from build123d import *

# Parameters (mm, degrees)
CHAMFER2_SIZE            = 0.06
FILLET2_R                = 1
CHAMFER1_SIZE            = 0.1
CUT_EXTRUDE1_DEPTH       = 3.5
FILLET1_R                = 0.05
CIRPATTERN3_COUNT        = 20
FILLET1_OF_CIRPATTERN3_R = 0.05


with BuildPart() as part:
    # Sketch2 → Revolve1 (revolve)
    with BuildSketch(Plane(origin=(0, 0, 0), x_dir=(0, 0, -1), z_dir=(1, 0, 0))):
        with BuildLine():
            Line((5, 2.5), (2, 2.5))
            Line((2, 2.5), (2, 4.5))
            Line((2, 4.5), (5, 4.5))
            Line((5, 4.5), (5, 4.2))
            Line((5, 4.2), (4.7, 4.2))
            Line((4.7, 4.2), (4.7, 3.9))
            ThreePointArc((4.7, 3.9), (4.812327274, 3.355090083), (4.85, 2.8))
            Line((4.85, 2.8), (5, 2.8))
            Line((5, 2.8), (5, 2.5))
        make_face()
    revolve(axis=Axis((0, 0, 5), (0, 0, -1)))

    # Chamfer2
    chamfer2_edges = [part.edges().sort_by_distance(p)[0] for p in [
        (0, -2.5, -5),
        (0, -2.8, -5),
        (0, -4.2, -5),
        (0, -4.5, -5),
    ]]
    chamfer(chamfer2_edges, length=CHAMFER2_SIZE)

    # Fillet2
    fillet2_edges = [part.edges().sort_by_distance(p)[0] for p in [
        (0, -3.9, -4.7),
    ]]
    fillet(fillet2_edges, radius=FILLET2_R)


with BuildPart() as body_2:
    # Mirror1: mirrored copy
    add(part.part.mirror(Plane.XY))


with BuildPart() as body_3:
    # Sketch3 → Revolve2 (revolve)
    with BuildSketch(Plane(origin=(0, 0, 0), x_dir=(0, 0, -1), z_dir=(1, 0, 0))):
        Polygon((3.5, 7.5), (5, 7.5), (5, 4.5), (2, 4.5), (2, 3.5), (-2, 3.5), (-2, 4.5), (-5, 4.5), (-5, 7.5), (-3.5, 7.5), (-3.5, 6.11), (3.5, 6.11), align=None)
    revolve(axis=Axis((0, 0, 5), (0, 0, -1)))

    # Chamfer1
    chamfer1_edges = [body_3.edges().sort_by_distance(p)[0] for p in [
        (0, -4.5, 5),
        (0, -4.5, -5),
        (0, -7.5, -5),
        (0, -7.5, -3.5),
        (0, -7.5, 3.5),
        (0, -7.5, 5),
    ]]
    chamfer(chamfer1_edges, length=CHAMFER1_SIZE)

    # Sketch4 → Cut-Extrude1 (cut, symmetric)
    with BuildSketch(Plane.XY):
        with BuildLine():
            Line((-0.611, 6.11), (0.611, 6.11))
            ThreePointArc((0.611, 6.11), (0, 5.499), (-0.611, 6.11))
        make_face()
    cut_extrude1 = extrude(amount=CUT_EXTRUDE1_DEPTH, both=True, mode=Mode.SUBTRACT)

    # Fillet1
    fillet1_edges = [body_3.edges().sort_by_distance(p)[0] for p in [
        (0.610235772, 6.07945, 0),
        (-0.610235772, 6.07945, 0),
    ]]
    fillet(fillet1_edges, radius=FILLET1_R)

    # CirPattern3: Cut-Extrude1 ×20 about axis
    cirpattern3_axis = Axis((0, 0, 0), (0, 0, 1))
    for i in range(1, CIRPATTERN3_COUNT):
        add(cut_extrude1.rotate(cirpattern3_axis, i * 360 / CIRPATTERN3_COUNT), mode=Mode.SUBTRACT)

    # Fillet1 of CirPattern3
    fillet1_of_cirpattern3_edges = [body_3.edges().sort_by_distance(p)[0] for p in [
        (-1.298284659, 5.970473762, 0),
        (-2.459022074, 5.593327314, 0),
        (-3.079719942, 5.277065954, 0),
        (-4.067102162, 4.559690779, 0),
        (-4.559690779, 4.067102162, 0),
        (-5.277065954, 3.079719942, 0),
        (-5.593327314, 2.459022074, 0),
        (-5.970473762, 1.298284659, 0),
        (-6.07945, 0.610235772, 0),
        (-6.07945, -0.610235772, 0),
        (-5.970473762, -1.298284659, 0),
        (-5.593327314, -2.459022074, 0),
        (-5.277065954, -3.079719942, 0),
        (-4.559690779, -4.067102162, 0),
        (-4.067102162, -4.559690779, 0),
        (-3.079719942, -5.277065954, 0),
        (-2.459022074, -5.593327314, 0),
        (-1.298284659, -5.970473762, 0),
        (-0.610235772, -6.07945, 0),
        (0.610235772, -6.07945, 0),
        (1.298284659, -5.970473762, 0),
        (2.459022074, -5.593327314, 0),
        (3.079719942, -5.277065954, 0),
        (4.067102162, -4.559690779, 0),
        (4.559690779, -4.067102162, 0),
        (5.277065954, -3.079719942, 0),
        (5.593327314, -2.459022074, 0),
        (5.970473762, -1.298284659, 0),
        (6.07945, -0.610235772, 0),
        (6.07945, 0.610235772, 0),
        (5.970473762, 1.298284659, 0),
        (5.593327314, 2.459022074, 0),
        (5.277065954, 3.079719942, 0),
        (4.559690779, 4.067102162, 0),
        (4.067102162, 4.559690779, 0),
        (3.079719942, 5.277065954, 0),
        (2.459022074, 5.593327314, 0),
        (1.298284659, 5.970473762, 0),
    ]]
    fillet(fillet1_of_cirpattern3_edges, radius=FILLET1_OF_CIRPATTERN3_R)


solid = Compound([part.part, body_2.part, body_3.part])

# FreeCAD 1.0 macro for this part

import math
import FreeCAD as App
import Part
import Sketcher

V = App.Vector
Q = App.Units.Quantity


def edges_at(feature, points):
    """Names of the edges that pass closest to the given points."""
    edges = feature.Shape.Edges
    near = lambda p: min(range(len(edges)), key=lambda i: edges[i].distToShape(Part.Vertex(*p))[0])
    return sorted({f"Edge{near(p) + 1}" for p in points})

doc = App.newDocument("Part")
body = doc.addObject("PartDesign::Body", "Body")

sketch1 = doc.addObject("Sketcher::SketchObject", "Sketch")
body.addObject(sketch1)
sketch1.AttachmentSupport = (doc.YZ_Plane, [""])
sketch1.MapMode = "FlatFace"
sketch1.addGeometry([
    Part.LineSegment(V(2.5, -2, 0), V(2.5, -5, 0)),
    Part.LineSegment(V(2.5, -5, 0), V(2.8, -5, 0)),
    Part.LineSegment(V(2.8, -5, 0), V(2.8, -4.85, 0)),
    Part.ArcOfCircle(Part.Circle(V(2.8, -0.74, 0), V(0, 0, 1), 4.11), math.radians(-90), math.radians(-74.47)),
    Part.LineSegment(V(3.9, -4.7, 0), V(4.2, -4.7, 0)),
    Part.LineSegment(V(4.2, -4.7, 0), V(4.2, -5, 0)),
    Part.LineSegment(V(4.2, -5, 0), V(4.5, -5, 0)),
    Part.LineSegment(V(4.5, -5, 0), V(4.5, -2, 0)),
    Part.LineSegment(V(4.5, -2, 0), V(2.5, -2, 0)),
], False)
sketch1.addConstraint([
    Sketcher.Constraint("Coincident", 0, 2, 1, 1),
    Sketcher.Constraint("Coincident", 1, 2, 2, 1),
    Sketcher.Constraint("Coincident", 2, 2, 3, 1),
    Sketcher.Constraint("Coincident", 3, 2, 4, 1),
    Sketcher.Constraint("Coincident", 4, 2, 5, 1),
    Sketcher.Constraint("Coincident", 5, 2, 6, 1),
    Sketcher.Constraint("Coincident", 6, 2, 7, 1),
    Sketcher.Constraint("Coincident", 7, 2, 8, 1),
    Sketcher.Constraint("Coincident", 8, 2, 0, 1),
    Sketcher.Constraint("Vertical", 0),
    Sketcher.Constraint("Horizontal", 1),
    Sketcher.Constraint("Vertical", 2),
    Sketcher.Constraint("Horizontal", 4),
    Sketcher.Constraint("Vertical", 5),
    Sketcher.Constraint("Horizontal", 6),
    Sketcher.Constraint("Vertical", 7),
    Sketcher.Constraint("Horizontal", 8),
    Sketcher.Constraint("Horizontal", 1, 2, 5, 2),
    Sketcher.Constraint("Vertical", 3, 3, 1, 2),
    Sketcher.Constraint("Equal", 1, 4),
    Sketcher.Constraint("Equal", 4, 6),
    Sketcher.Constraint("Equal", 6, 5),
    Sketcher.Constraint("DistanceX", 8, 2, 8, 1, Q("2 mm")),
    Sketcher.Constraint("DistanceY", 0, 2, 0, 1, Q("3 mm")),
    Sketcher.Constraint("DistanceX", 1, 1, 1, 2, Q("0.3 mm")),
    Sketcher.Constraint("DistanceY", 0, 2, -1, 1, Q("5 mm")),
    Sketcher.Constraint("DistanceY", 2, 1, 2, 2, Q("0.15 mm")),
    Sketcher.Constraint("DistanceX", -1, 1, 3, 3, Q("2.8 mm")),
])
revolution = doc.addObject("PartDesign::Revolution", "Revolution")
body.addObject(revolution)
revolution.Profile = sketch1
revolution.ReferenceAxis = (sketch1, ["V_Axis"])
revolution.Angle = 360
doc.recompute()

chamfer = doc.addObject("PartDesign::Chamfer", "Chamfer")
body.addObject(chamfer)
chamfer.Base = (revolution, edges_at(revolution, [
    (0, -2.5, -5),
    (0, -2.8, -5),
    (0, -4.2, -5),
    (0, -4.5, -5),
]))
chamfer.Size = 0.06
doc.recompute()

fillet = doc.addObject("PartDesign::Fillet", "Fillet")
body.addObject(fillet)
fillet.Base = (chamfer, edges_at(chamfer, [(0, -3.9, -4.7)]))
fillet.Radius = 1
body2 = doc.addObject("PartDesign::Body", "Body001")
doc.recompute()

mirroring = doc.addObject("Part::Mirroring", "Mirroring")
mirroring.Source = body
mirroring.Base = V(0, 0, 0)
mirroring.Normal = V(0, 0, 1)
body2.BaseFeature = mirroring
doc.recompute()
body3 = doc.addObject("PartDesign::Body", "Body002")

sketch2 = doc.addObject("Sketcher::SketchObject", "Sketch001")
body3.addObject(sketch2)
sketch2.AttachmentSupport = (doc.getObject("YZ_Plane002"), [""])
sketch2.MapMode = "FlatFace"
sketch2.addGeometry([
    Part.LineSegment(V(7.5, -5, 0), V(7.5, -3.5, 0)),
    Part.LineSegment(V(7.5, -3.5, 0), V(6.1, -3.5, 0)),
    Part.LineSegment(V(6.1, -3.5, 0), V(6.1, 3.5, 0)),
    Part.LineSegment(V(6.1, 3.5, 0), V(7.5, 3.5, 0)),
    Part.LineSegment(V(7.5, 3.5, 0), V(7.5, 5, 0)),
    Part.LineSegment(V(7.5, 5, 0), V(4.5, 5, 0)),
    Part.LineSegment(V(4.5, 5, 0), V(4.5, 2, 0)),
    Part.LineSegment(V(4.5, 2, 0), V(3.5, 2, 0)),
    Part.LineSegment(V(3.5, 2, 0), V(3.5, -2, 0)),
    Part.LineSegment(V(3.5, -2, 0), V(4.5, -2, 0)),
    Part.LineSegment(V(4.5, -2, 0), V(4.5, -5, 0)),
    Part.LineSegment(V(4.5, -5, 0), V(7.5, -5, 0)),
], False)
sketch2.addConstraint([
    Sketcher.Constraint("Coincident", 0, 2, 1, 1),
    Sketcher.Constraint("Coincident", 1, 2, 2, 1),
    Sketcher.Constraint("Coincident", 2, 2, 3, 1),
    Sketcher.Constraint("Coincident", 3, 2, 4, 1),
    Sketcher.Constraint("Coincident", 4, 2, 5, 1),
    Sketcher.Constraint("Coincident", 5, 2, 6, 1),
    Sketcher.Constraint("Coincident", 6, 2, 7, 1),
    Sketcher.Constraint("Coincident", 7, 2, 8, 1),
    Sketcher.Constraint("Coincident", 8, 2, 9, 1),
    Sketcher.Constraint("Coincident", 9, 2, 10, 1),
    Sketcher.Constraint("Coincident", 10, 2, 11, 1),
    Sketcher.Constraint("Coincident", 11, 2, 0, 1),
    Sketcher.Constraint("Vertical", 0),
    Sketcher.Constraint("Horizontal", 1),
    Sketcher.Constraint("Vertical", 2),
    Sketcher.Constraint("Horizontal", 3),
    Sketcher.Constraint("Vertical", 4),
    Sketcher.Constraint("Horizontal", 5),
    Sketcher.Constraint("Vertical", 6),
    Sketcher.Constraint("Horizontal", 7),
    Sketcher.Constraint("Vertical", 8),
    Sketcher.Constraint("Horizontal", 9),
    Sketcher.Constraint("Vertical", 10),
    Sketcher.Constraint("Horizontal", 11),
    Sketcher.Constraint("Symmetric", 0, 2, 3, 2, -1),
    Sketcher.Constraint("Symmetric", 6, 2, 9, 2, -1),
    Sketcher.Constraint("Equal", 0, 4),
    Sketcher.Constraint("Equal", 11, 6),
    Sketcher.Constraint("DistanceX", 5, 2, 5, 1, Q("3 mm")),
    Sketcher.Constraint("DistanceX", 7, 2, 7, 1, Q("1 mm")),
    Sketcher.Constraint("DistanceY", 2, 1, 2, 2, Q("7 mm")),
    Sketcher.Constraint("DistanceY", 8, 2, 8, 1, Q("4 mm")),
    Sketcher.Constraint("DistanceX", 1, 2, 1, 1, Q("1.39 mm")),
    Sketcher.Constraint("DistanceX", -1, 1, 0, 2, Q("7.5 mm")),
])
revolution2 = doc.addObject("PartDesign::Revolution", "Revolution001")
body3.addObject(revolution2)
revolution2.Profile = sketch2
revolution2.ReferenceAxis = (sketch2, ["V_Axis"])
revolution2.Angle = 360
doc.recompute()

chamfer2 = doc.addObject("PartDesign::Chamfer", "Chamfer001")
body3.addObject(chamfer2)
chamfer2.Base = (revolution2, edges_at(revolution2, [
    (0, -4.5, 5),
    (0, -4.5, -5),
    (0, -7.5, -5),
    (0, -7.5, -3.5),
    (0, -7.5, 3.5),
    (0, -7.5, 5),
]))
chamfer2.Size = 0.1

sketch3 = doc.addObject("Sketcher::SketchObject", "Sketch002")
body3.addObject(sketch3)
sketch3.AttachmentSupport = (doc.getObject("XY_Plane002"), [""])
sketch3.MapMode = "FlatFace"
sketch3.addGeometry([
    Part.LineSegment(V(0.6, 6.1, 0), V(-0.6, 6.1, 0)),
    Part.ArcOfCircle(Part.Circle(V(0, 6.1, 0), V(0, 0, 1), 0.6), math.radians(180), math.radians(360)),
], False)
sketch3.addConstraint([
    Sketcher.Constraint("Coincident", 0, 1, 1, 2),
    Sketcher.Constraint("Coincident", 1, 1, 0, 2),
    Sketcher.Constraint("Horizontal", 0),
    Sketcher.Constraint("PointOnObject", 1, 3, -2),
    Sketcher.Constraint("Horizontal", 1, 3, 0, 1),
    Sketcher.Constraint("Radius", 1, Q("0.611 mm")),
    Sketcher.Constraint("DistanceY", -1, 1, 1, 3, Q("6.11 mm")),
])
pocket1 = doc.addObject("PartDesign::Pocket", "Pocket")
body3.addObject(pocket1)
pocket1.Profile = sketch3
pocket1.Length = 7
pocket1.Midplane = True
doc.recompute()

fillet2 = doc.addObject("PartDesign::Fillet", "Fillet001")
body3.addObject(fillet2)
fillet2.Base = (pocket1, edges_at(pocket1, [(0.61, 6.079, 0), (-0.61, 6.079, 0)]))
fillet2.Radius = 0.05
doc.recompute()

polarpattern = doc.addObject("PartDesign::PolarPattern", "PolarPattern")
body3.addObject(polarpattern)
polarpattern.Originals = [pocket1]
polarpattern.Axis = (doc.getObject("Z_Axis002"), [""])
polarpattern.Angle = 360
polarpattern.Occurrences = 20
body3.Tip = polarpattern
doc.recompute()

fillet3 = doc.addObject("PartDesign::Fillet", "Fillet002")
body3.addObject(fillet3)
fillet3.Base = (polarpattern, edges_at(polarpattern, [
    (-1.298, 5.97, 0),
    (-2.459, 5.593, 0),
    (-3.08, 5.277, 0),
    (-4.067, 4.56, 0),
    (-4.56, 4.067, 0),
    (-5.277, 3.08, 0),
    (-5.593, 2.459, 0),
    (-5.97, 1.298, 0),
    (-6.079, 0.61, 0),
    (-6.079, -0.61, 0),
    (-5.97, -1.298, 0),
    (-5.593, -2.459, 0),
    (-5.277, -3.08, 0),
    (-4.56, -4.067, 0),
    (-4.067, -4.56, 0),
    (-3.08, -5.277, 0),
    (-2.459, -5.593, 0),
    (-1.298, -5.97, 0),
    (-0.61, -6.079, 0),
    (0.61, -6.079, 0),
    (1.298, -5.97, 0),
    (2.459, -5.593, 0),
    (3.08, -5.277, 0),
    (4.067, -4.56, 0),
    (4.56, -4.067, 0),
    (5.277, -3.08, 0),
    (5.593, -2.459, 0),
    (5.97, -1.298, 0),
    (6.079, -0.61, 0),
    (6.079, 0.61, 0),
    (5.97, 1.298, 0),
    (5.593, 2.459, 0),
    (5.277, 3.08, 0),
    (4.56, 4.067, 0),
    (4.067, 4.56, 0),
    (3.08, 5.277, 0),
    (2.459, 5.593, 0),
    (1.298, 5.97, 0),
]))
fillet3.Radius = 0.05
mirroring.Visibility = False

doc.recompute()
